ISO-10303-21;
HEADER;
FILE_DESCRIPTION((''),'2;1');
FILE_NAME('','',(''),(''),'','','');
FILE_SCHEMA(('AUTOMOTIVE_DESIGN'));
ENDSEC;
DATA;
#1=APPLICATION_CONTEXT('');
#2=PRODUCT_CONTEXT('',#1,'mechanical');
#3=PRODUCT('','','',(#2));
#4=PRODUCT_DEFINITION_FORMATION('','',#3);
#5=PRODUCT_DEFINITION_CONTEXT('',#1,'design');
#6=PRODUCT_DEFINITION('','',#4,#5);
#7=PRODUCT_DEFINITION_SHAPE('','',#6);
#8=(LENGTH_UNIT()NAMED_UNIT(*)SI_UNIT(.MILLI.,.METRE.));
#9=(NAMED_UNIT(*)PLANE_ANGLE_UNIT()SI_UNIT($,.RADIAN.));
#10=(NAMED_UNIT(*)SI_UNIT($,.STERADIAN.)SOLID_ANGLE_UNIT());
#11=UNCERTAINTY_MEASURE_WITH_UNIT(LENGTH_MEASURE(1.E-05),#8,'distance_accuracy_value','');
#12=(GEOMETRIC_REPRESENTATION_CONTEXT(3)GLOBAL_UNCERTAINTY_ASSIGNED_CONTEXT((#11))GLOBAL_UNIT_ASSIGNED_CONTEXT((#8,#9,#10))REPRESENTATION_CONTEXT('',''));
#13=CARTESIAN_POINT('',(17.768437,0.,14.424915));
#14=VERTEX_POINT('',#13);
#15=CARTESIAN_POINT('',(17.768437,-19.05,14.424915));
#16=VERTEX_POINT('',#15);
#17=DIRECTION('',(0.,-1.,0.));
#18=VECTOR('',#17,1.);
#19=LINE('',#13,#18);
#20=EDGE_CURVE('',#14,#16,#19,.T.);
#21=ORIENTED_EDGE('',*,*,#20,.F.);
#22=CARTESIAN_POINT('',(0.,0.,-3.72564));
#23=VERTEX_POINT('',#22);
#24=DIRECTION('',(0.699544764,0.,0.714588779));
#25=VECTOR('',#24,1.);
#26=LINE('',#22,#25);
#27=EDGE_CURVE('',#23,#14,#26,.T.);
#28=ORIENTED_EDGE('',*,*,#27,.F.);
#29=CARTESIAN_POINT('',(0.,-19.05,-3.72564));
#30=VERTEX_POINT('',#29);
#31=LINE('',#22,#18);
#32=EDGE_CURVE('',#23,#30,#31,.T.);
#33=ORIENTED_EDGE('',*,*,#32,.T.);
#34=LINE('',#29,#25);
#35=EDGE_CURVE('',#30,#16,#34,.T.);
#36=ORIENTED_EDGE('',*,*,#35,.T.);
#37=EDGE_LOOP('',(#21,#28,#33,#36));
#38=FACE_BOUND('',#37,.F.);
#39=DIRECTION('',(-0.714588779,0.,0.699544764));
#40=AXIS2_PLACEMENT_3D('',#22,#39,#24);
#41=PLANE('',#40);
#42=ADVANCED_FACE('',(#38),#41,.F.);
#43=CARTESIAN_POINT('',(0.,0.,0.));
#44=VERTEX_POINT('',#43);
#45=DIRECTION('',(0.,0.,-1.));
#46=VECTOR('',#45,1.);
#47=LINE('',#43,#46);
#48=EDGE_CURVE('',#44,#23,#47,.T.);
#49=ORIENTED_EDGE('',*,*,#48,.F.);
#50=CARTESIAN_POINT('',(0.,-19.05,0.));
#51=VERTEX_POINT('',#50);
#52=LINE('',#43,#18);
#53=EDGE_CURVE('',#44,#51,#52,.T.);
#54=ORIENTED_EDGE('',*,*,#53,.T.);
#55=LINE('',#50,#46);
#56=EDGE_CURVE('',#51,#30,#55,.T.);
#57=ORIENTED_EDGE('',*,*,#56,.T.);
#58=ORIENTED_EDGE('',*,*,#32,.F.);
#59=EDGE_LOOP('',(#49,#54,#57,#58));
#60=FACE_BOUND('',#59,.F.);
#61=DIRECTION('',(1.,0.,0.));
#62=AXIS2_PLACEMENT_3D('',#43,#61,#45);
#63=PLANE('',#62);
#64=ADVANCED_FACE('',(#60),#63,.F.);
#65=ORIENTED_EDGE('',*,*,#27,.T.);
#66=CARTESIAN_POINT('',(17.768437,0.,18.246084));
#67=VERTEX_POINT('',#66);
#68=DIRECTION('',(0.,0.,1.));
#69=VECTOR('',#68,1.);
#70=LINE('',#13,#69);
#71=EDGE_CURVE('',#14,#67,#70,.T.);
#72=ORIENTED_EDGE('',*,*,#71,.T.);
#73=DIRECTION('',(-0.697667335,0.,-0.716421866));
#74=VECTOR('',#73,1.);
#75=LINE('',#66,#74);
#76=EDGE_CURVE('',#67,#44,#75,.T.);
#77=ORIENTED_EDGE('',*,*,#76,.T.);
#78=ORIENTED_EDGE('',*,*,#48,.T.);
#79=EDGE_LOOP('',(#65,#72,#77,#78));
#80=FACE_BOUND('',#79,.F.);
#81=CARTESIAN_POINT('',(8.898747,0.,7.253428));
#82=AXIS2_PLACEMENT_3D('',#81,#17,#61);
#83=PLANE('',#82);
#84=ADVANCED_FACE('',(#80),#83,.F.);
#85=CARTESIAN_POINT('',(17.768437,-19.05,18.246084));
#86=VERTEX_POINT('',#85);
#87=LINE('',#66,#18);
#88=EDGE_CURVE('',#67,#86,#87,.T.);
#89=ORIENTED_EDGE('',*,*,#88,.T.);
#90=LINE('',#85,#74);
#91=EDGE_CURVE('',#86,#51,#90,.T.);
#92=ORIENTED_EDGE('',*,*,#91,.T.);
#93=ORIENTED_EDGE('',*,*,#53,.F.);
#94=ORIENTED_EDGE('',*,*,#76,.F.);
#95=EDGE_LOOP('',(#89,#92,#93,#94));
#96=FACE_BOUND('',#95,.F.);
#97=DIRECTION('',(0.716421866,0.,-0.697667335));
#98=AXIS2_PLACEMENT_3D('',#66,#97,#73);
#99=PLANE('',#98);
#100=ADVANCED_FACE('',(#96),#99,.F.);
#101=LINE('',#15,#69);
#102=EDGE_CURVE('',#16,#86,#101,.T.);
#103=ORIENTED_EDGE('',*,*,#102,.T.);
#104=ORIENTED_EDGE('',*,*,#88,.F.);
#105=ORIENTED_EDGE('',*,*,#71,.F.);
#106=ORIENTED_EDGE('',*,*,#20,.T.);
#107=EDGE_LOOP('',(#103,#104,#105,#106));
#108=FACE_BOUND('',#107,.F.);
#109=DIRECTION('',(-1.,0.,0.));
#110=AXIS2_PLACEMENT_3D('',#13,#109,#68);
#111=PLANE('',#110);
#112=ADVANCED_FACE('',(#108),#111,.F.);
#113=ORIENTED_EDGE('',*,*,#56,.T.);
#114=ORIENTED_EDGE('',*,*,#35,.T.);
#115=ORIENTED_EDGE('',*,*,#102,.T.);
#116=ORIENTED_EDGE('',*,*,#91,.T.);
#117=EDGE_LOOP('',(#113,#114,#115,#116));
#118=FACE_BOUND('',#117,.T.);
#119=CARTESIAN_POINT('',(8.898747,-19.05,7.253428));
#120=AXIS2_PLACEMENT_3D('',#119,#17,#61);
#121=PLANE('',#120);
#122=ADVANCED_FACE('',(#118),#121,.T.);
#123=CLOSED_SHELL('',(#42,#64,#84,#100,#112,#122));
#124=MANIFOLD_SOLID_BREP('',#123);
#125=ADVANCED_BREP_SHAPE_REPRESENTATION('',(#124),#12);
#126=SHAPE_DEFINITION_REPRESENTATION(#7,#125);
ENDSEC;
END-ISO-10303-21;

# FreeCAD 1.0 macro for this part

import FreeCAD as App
import Part
import Sketcher
from FreeCAD import Vector
Q = App.Units.Quantity


def add_polygon(sketch, points):
    """Adds a closed chain of lines whose ends are joined by coincident constraints."""
    first, n = sketch.GeometryCount, len(points)
    for a, b in zip(points, points[1:] + points[:1]):
        sketch.addGeometry(Part.LineSegment(App.Vector(*a, 0), App.Vector(*b, 0)), False)
    for i in range(n):
        sketch.addConstraint(Sketcher.Constraint("Coincident", first + i, 2, first + (i + 1) % n, 1))

doc = App.newDocument("Part")
params = doc.addObject("Spreadsheet::Sheet", "Params")
for row, (alias, value) in enumerate([
    ("sketch1_length", "1 in"),
    ("pad1_length", "0.75 in"),
], start=1):
    params.set(f"A{row}", alias)
    params.set(f"B{row}", "=" + value)
    params.setAlias(f"B{row}", alias)

body = doc.addObject("PartDesign::Body", "Body")

# Sketch on XZ plane
sketch1 = body.newObject("Sketcher::SketchObject", "Sketch")
sketch1.AttachmentSupport = (doc.getObject("XZ_Plane"), [""])
sketch1.MapMode = "FlatFace"
add_polygon(sketch1, [(17.8, 18.2), (0, 0), (0, -3.7), (17.8, 14.4)])  # lines 0-3
sketch1.addConstraint(Sketcher.Constraint("Vertical", 1))
sketch1.addConstraint(Sketcher.Constraint("Vertical", 3))
sketch1.addConstraint(Sketcher.Constraint("Coincident", 0, 2, -1, 1))
sketch1.addConstraint(Sketcher.Constraint("Distance", 2, Q("1 in")))
sketch1.addConstraint(Sketcher.Constraint("DistanceY", 1, 2, 1, 1, 3.72564))
sketch1.addConstraint(Sketcher.Constraint("DistanceY", 3, 1, 3, 2, 3.821169))
sketch1.addConstraint(Sketcher.Constraint("DistanceX", -1, 1, 2, 2, 17.768437))
sketch1.setExpression("Constraints[7]", "Params.sketch1_length")
pad1 = body.newObject("PartDesign::Pad", "Pad")
pad1.Profile = sketch1
pad1.setExpression("Length", "Params.pad1_length")
body2 = doc.addObject("PartDesign::Body", "Body001")
doc.recompute()

body2.BaseFeature = body
doc.recompute()
body.Visibility = False

doc.recompute()
